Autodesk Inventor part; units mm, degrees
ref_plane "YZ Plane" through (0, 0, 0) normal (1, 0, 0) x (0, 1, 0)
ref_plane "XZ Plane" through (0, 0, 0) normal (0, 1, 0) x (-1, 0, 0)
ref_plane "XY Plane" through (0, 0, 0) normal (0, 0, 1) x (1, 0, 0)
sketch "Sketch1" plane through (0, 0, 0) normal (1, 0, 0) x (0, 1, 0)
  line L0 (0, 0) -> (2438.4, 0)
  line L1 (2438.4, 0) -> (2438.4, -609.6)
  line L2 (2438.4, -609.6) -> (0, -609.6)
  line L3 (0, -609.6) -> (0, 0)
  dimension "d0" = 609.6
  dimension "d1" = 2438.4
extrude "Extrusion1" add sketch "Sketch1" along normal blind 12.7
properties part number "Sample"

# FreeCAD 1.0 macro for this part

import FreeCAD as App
import Part
import Sketcher

V = App.Vector
Q = App.Units.Quantity


def add_polygon(sketch, points):
    """Adds a closed chain of lines whose ends are joined by coincident constraints."""
    first, n = sketch.GeometryCount, len(points)
    for a, b in zip(points, points[1:] + points[:1]):
        sketch.addGeometry(Part.LineSegment(App.Vector(*a, 0), App.Vector(*b, 0)), False)
    for i in range(n):
        sketch.addConstraint(Sketcher.Constraint("Coincident", first + i, 2, first + (i + 1) % n, 1))

doc = App.newDocument("Part")
params = doc.addObject("Spreadsheet::Sheet", "Params")
for row, (alias, value) in enumerate([
    ("sketch1_width", "96 in"),
    ("sketch1_height", "24 in"),
    ("pad1_length", "0.5 in"),
], start=1):
    params.set(f"A{row}", alias)
    params.set(f"B{row}", "=" + value)
    params.setAlias(f"B{row}", alias)

body = doc.addObject("PartDesign::Body", "Body")

# Sketch on YZ plane
sketch1 = body.newObject("Sketcher::SketchObject", "Sketch")
sketch1.AttachmentSupport = (doc.getObject("YZ_Plane"), [""])
sketch1.MapMode = "FlatFace"
add_polygon(sketch1, [(2438, 0), (0, 0), (0, -610), (2438, -610)])  # lines 0-3
sketch1.addConstraint([
    Sketcher.Constraint("Horizontal", 0),
    Sketcher.Constraint("Vertical", 1),
    Sketcher.Constraint("Horizontal", 2),
    Sketcher.Constraint("Vertical", 3),
    Sketcher.Constraint("Coincident", 0, 2, -1, 1),
    Sketcher.Constraint("DistanceX", 0, 2, 0, 1, Q("96 in")),
    Sketcher.Constraint("DistanceY", 1, 2, 1, 1, Q("24 in")),
])
sketch1.setExpression("Constraints[9]", "Params.sketch1_width")
sketch1.setExpression("Constraints[10]", "Params.sketch1_height")
pad1 = body.newObject("PartDesign::Pad", "Pad")
pad1.Profile = sketch1
pad1.setExpression("Length", "Params.pad1_length")

doc.recompute()
